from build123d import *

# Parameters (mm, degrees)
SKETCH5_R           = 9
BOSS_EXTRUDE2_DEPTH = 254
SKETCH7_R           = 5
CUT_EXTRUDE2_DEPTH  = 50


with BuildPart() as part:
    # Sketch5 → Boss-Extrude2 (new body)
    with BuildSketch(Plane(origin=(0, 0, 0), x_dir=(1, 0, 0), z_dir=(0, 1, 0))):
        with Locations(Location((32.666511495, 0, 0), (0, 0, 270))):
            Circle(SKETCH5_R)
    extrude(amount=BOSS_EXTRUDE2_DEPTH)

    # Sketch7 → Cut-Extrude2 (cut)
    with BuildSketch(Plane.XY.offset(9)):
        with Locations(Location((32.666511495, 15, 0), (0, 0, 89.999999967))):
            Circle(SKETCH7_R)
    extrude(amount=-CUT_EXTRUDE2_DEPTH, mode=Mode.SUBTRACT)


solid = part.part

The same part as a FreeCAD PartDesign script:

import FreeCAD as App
import Part
import Sketcher

V = App.Vector

doc = App.newDocument("Part")
body = doc.addObject("PartDesign::Body", "Body")

sketch1 = doc.addObject("Sketcher::SketchObject", "Sketch")
body.addObject(sketch1)
sketch1.AttachmentSupport = (doc.XZ_Plane, [""])
sketch1.MapMode = "FlatFace"
sketch1.addGeometry(Part.Circle(V(33, 0, 0), V(0, 0, 1), 9), False)
sketch1.addConstraint([
    Sketcher.Constraint("PointOnObject", 0, 3, -1),
    Sketcher.Constraint("Diameter", 0, 18.0),
    Sketcher.Constraint("DistanceX", -1, 1, 0, 3, 32.666511),
])
pad1 = doc.addObject("PartDesign::Pad", "Pad")
body.addObject(pad1)
pad1.Profile = sketch1
pad1.Length = 254
pad1.Reversed = True

sketch2 = doc.addObject("Sketcher::SketchObject", "Sketch001")
body.addObject(sketch2)
sketch2.AttachmentSupport = (doc.XY_Plane, [""])
sketch2.MapMode = "FlatFace"
sketch2.AttachmentOffset = App.Placement(V(0, 0, 9), App.Rotation())
sketch2.addGeometry(Part.Circle(V(33, 15, 0), V(0, 0, 1), 5), False)
sketch2.addConstraint([
    Sketcher.Constraint("Diameter", 0, 10.0),
    Sketcher.Constraint("DistanceY", -1, 1, 0, 3, 15.0),
    Sketcher.Constraint("DistanceX", -1, 1, 0, 3, 32.666511),
])
pocket1 = doc.addObject("PartDesign::Pocket", "Pocket")
body.addObject(pocket1)
pocket1.Profile = sketch2
pocket1.Length = 50

doc.recompute()
